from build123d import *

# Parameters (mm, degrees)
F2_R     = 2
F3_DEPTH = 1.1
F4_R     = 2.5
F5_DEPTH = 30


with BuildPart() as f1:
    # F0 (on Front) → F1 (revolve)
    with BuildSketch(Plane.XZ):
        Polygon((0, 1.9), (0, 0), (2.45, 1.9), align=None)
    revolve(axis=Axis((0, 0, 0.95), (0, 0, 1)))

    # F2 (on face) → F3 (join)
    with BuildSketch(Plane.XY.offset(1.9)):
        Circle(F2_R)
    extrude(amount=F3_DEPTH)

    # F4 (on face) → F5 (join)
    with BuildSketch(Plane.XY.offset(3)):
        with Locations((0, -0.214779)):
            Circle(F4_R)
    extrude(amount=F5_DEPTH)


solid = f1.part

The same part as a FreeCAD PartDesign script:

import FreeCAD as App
import Part
import Sketcher

doc = App.newDocument("Part")
params = doc.addObject("Spreadsheet::Sheet", "Params")
for row, (alias, value) in enumerate([
    ("sketch1_height", "1.9 mm"),
    ("sketch1_width", "2.45 mm"),
    ("revolution_angle", "360 deg"),
    ("sketch2_diameter", "4 mm"),
    ("pad1_length", "1.1 mm"),
    ("sketch3_diameter", "5 mm"),
    ("pad2_length", "30 mm"),
], start=1):
    params.set(f"A{row}", alias)
    params.set(f"B{row}", "=" + value)
    params.setAlias(f"B{row}", alias)

body = doc.addObject("PartDesign::Body", "Body")

# Sketch on XZ plane
sketch1 = body.newObject("Sketcher::SketchObject", "Sketch")
sketch1.AttachmentSupport = (doc.getObject("XZ_Plane"), [""])
sketch1.MapMode = "FlatFace"
sketch1.addGeometry([
    Part.LineSegment(App.Vector(0, 1.9, 0), App.Vector(0, 0, 0)),
    Part.LineSegment(App.Vector(0, 0, 0), App.Vector(2.5, 1.9, 0)),
    Part.LineSegment(App.Vector(2.5, 1.9, 0), App.Vector(0, 1.9, 0)),
], False)
sketch1.addConstraint([
    Sketcher.Constraint("Coincident", 0, 2, 1, 1),
    Sketcher.Constraint("Coincident", 1, 2, 2, 1),
    Sketcher.Constraint("Coincident", 2, 2, 0, 1),
    Sketcher.Constraint("Vertical", 0),
    Sketcher.Constraint("Horizontal", 2),
    Sketcher.Constraint("Coincident", 0, 2, -1, 1),
    Sketcher.Constraint("DistanceY", 0, 2, 0, 1, 1.9),
    Sketcher.Constraint("DistanceX", 2, 2, 2, 1, 2.45),
])
sketch1.setExpression("Constraints[6]", "Params.sketch1_height")
sketch1.setExpression("Constraints[7]", "Params.sketch1_width")
revolution = body.newObject("PartDesign::Revolution", "Revolution")
revolution.Profile = sketch1
revolution.ReferenceAxis = (sketch1, ["V_Axis"])
revolution.setExpression("Angle", "Params.revolution_angle")

# Sketch on XY plane
sketch2 = body.newObject("Sketcher::SketchObject", "Sketch001")
sketch2.AttachmentSupport = (doc.getObject("XY_Plane"), [""])
sketch2.MapMode = "FlatFace"
sketch2.AttachmentOffset = App.Placement(App.Vector(0, 0, 1.9), App.Rotation())
sketch2.addGeometry(Part.Circle(App.Vector(0, 0, 0), App.Vector(0, 0, 1), 2), False)
sketch2.addConstraint([
    Sketcher.Constraint("Coincident", 0, 3, -1, 1),
    Sketcher.Constraint("Diameter", 0, 4.0),
])
sketch2.setExpression("Constraints[1]", "Params.sketch2_diameter")
pad1 = body.newObject("PartDesign::Pad", "Pad")
pad1.Profile = sketch2
pad1.setExpression("Length", "Params.pad1_length")

# Sketch on XY plane
sketch3 = body.newObject("Sketcher::SketchObject", "Sketch002")
sketch3.AttachmentSupport = (doc.getObject("XY_Plane"), [""])
sketch3.MapMode = "FlatFace"
sketch3.AttachmentOffset = App.Placement(App.Vector(0, 0, 3), App.Rotation())
sketch3.addGeometry(Part.Circle(App.Vector(0, -0.2, 0), App.Vector(0, 0, 1), 2.5), False)
sketch3.addConstraint([
    Sketcher.Constraint("PointOnObject", 0, 3, -2),
    Sketcher.Constraint("Diameter", 0, 5.0),
    Sketcher.Constraint("DistanceY", 0, 3, -1, 1, 0.214779),
])
sketch3.setExpression("Constraints[1]", "Params.sketch3_diameter")
pad2 = body.newObject("PartDesign::Pad", "Pad001")
pad2.Profile = sketch3
pad2.setExpression("Length", "Params.pad2_length")

doc.recompute()
